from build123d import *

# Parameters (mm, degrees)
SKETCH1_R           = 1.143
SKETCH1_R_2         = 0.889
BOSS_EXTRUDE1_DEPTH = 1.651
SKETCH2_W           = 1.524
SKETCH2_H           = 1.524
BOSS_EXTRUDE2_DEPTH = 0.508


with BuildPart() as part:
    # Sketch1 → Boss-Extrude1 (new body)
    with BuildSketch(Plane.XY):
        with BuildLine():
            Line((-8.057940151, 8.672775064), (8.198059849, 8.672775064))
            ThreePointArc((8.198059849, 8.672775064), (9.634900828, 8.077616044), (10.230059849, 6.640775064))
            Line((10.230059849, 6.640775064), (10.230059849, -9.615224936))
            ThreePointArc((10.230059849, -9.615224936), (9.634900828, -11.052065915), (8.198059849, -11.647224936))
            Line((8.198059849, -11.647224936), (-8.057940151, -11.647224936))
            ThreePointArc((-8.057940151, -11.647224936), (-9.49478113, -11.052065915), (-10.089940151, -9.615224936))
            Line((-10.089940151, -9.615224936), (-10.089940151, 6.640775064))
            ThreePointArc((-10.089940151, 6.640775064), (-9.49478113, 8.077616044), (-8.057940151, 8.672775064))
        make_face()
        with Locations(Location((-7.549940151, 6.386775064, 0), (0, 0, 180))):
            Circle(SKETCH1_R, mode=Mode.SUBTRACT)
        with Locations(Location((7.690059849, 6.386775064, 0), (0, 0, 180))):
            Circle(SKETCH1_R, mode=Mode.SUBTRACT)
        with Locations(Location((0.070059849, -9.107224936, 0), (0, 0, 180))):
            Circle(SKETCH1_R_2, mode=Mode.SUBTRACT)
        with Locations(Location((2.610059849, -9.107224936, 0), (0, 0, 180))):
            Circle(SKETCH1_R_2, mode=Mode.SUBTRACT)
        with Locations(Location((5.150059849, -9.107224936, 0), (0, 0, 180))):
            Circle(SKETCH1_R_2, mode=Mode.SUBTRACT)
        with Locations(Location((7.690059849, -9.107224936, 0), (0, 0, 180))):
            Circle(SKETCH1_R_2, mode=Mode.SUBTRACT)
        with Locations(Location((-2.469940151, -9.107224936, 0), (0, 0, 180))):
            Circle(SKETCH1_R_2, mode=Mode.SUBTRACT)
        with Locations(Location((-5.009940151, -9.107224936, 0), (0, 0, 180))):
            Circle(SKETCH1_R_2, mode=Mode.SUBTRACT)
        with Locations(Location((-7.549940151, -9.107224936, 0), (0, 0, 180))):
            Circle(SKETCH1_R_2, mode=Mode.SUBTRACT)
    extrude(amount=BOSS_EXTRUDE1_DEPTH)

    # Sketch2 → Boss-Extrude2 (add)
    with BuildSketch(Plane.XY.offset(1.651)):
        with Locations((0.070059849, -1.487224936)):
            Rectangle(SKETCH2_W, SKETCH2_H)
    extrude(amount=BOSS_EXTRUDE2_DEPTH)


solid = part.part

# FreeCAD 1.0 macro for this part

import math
import FreeCAD as App
import Part
import Sketcher
from FreeCAD import Vector
Q = App.Units.Quantity


def add_polygon(sketch, points):
    """Adds a closed chain of lines whose ends are joined by coincident constraints."""
    first, n = sketch.GeometryCount, len(points)
    for a, b in zip(points, points[1:] + points[:1]):
        sketch.addGeometry(Part.LineSegment(App.Vector(*a, 0), App.Vector(*b, 0)), False)
    for i in range(n):
        sketch.addConstraint(Sketcher.Constraint("Coincident", first + i, 2, first + (i + 1) % n, 1))

doc = App.newDocument("Part")
body = doc.addObject("PartDesign::Body", "Body")

# Sketch on XY plane
sketch1 = body.newObject("Sketcher::SketchObject", "Sketch")
sketch1.AttachmentSupport = (doc.getObject("XY_Plane"), [""])
sketch1.MapMode = "FlatFace"
sketch1.addGeometry([
    Part.LineSegment(Vector(8.19806, 8.672775, 0), Vector(-8.05794, 8.672775, 0)),  # 0
    Part.ArcOfCircle(Part.Circle(Vector(-8.05794, 6.640775, 0), Vector(0, 0, 1), 2.032), math.radians(90), math.radians(180)),  # 1
    Part.LineSegment(Vector(-10.08994, 6.640775, 0), Vector(-10.08994, -9.615225, 0)),  # 2
    Part.ArcOfCircle(Part.Circle(Vector(-8.05794, -9.615225, 0), Vector(0, 0, 1), 2.032), math.radians(-180), math.radians(-90)),  # 3
    Part.LineSegment(Vector(-8.05794, -11.647225, 0), Vector(8.19806, -11.647225, 0)),  # 4
    Part.ArcOfCircle(Part.Circle(Vector(8.19806, -9.615225, 0), Vector(0, 0, 1), 2.032), math.radians(-90), math.radians(0)),  # 5
    Part.LineSegment(Vector(10.23006, -9.615225, 0), Vector(10.23006, 6.640775, 0)),  # 6
    Part.ArcOfCircle(Part.Circle(Vector(8.19806, 6.640775, 0), Vector(0, 0, 1), 2.032), math.radians(0), math.radians(90)),  # 7
    Part.Circle(Vector(7.69006, -9.107225, 0), Vector(0, 0, 1), 0.889),  # 8
    Part.Circle(Vector(5.15006, -9.107225, 0), Vector(0, 0, 1), 0.889),  # 9
    Part.Circle(Vector(2.61006, -9.107225, 0), Vector(0, 0, 1), 0.889),  # 10
    Part.Circle(Vector(0.07006, -9.107225, 0), Vector(0, 0, 1), 0.889),  # 11
    Part.Circle(Vector(-2.46994, -9.107225, 0), Vector(0, 0, 1), 0.889),  # 12
    Part.Circle(Vector(-5.00994, -9.107225, 0), Vector(0, 0, 1), 0.889),  # 13
    Part.Circle(Vector(-7.54994, -9.107225, 0), Vector(0, 0, 1), 0.889),  # 14
    Part.Circle(Vector(7.69006, 6.386775, 0), Vector(0, 0, 1), 1.143),  # 15
    Part.Circle(Vector(-7.54994, 6.386775, 0), Vector(0, 0, 1), 1.143),  # 16
], False)
sketch1.addConstraint([
    Sketcher.Constraint("Tangent", 0, 2, 1, 1),
    Sketcher.Constraint("Tangent", 1, 2, 2, 1),
    Sketcher.Constraint("Tangent", 2, 2, 3, 1),
    Sketcher.Constraint("Tangent", 3, 2, 4, 1),
    Sketcher.Constraint("Tangent", 4, 2, 5, 1),
    Sketcher.Constraint("Tangent", 5, 2, 6, 1),
    Sketcher.Constraint("Tangent", 6, 2, 7, 1),
    Sketcher.Constraint("Tangent", 7, 2, 0, 1),
    Sketcher.Constraint("Horizontal", 0),
    Sketcher.Constraint("Vertical", 2),
    Sketcher.Constraint("Horizontal", 4),
    Sketcher.Constraint("Vertical", 6),
    Sketcher.Constraint("Equal", 1, 3),
    Sketcher.Constraint("Equal", 3, 5),
    Sketcher.Constraint("Equal", 5, 7),
    Sketcher.Constraint("Equal", 8, 9),
    Sketcher.Constraint("Equal", 9, 10),
    Sketcher.Constraint("Equal", 10, 11),
    Sketcher.Constraint("Equal", 11, 12),
    Sketcher.Constraint("Equal", 12, 13),
    Sketcher.Constraint("Equal", 13, 14),
    Sketcher.Constraint("Equal", 15, 16),
    Sketcher.Constraint("Horizontal", 8, 3, 9, 3),
    Sketcher.Constraint("Horizontal", 9, 3, 10, 3),
    Sketcher.Constraint("Horizontal", 10, 3, 11, 3),
    Sketcher.Constraint("Horizontal", 11, 3, 12, 3),
    Sketcher.Constraint("Horizontal", 12, 3, 13, 3),
    Sketcher.Constraint("Horizontal", 13, 3, 14, 3),
    Sketcher.Constraint("Horizontal", 15, 3, 16, 3),
    Sketcher.Constraint("Vertical", 8, 3, 15, 3),
    Sketcher.Constraint("Vertical", 14, 3, 16, 3),
    Sketcher.Constraint("Equal", 4, 2),
    Sketcher.Constraint("Diameter", 8, Q("0.07 in")),
    Sketcher.Constraint("Diameter", 15, Q("0.09 in")),
    Sketcher.Constraint("Radius", 1, Q("0.08 in")),
    Sketcher.Constraint("DistanceX", 0, 2, 0, 1, Q("0.64 in")),
    Sketcher.Constraint("DistanceX", 9, 3, 8, 3, Q("0.1 in")),
    Sketcher.Constraint("DistanceX", 10, 3, 9, 3, Q("0.1 in")),
    Sketcher.Constraint("DistanceX", 11, 3, 10, 3, Q("0.1 in")),
    Sketcher.Constraint("DistanceX", 12, 3, 11, 3, Q("0.1 in")),
    Sketcher.Constraint("DistanceX", 13, 3, 12, 3, Q("0.1 in")),
    Sketcher.Constraint("DistanceX", 14, 3, 13, 3, Q("0.1 in")),
    Sketcher.Constraint("DistanceY", 14, 3, 0, 2, Q("0.7 in")),
    Sketcher.Constraint("DistanceX", 1, 2, 16, 3, Q("0.1 in")),
    Sketcher.Constraint("DistanceY", 15, 3, 7, 3, Q("0.01 in")),
    Sketcher.Constraint("DistanceX", 1, 3, -1, 1, 8.05794),
    Sketcher.Constraint("DistanceY", -1, 1, 1, 3, 6.640775),
])
pad1 = body.newObject("PartDesign::Pad", "Pad")
pad1.Profile = sketch1
pad1.Length = Q("0.065 in")

# Sketch on XY plane
sketch2 = body.newObject("Sketcher::SketchObject", "Sketch001")
sketch2.AttachmentSupport = (doc.getObject("XY_Plane"), [""])
sketch2.MapMode = "FlatFace"
sketch2.AttachmentOffset = App.Placement(Vector(0, 0, 0.065 * 25.4), App.Rotation())
add_polygon(sketch2, [(-0.69194, -0.725225), (-0.69194, -2.249225), (0.83206, -2.249225), (0.83206, -0.725225)])  # lines 0-3
sketch2.addConstraint([
    Sketcher.Constraint("Vertical", 0),
    Sketcher.Constraint("Horizontal", 1),
    Sketcher.Constraint("Vertical", 2),
    Sketcher.Constraint("Horizontal", 3),
    Sketcher.Constraint("Equal", 3, 0),
    Sketcher.Constraint("DistanceX", 1, 1, 1, 2, Q("0.06 in")),
    Sketcher.Constraint("DistanceX", 0, 2, -1, 1, 0.69194),
    Sketcher.Constraint("DistanceY", 0, 2, -1, 1, 2.249225),
])
pad2 = body.newObject("PartDesign::Pad", "Pad001")
pad2.Profile = sketch2
pad2.Length = Q("0.02 in")

doc.recompute()
